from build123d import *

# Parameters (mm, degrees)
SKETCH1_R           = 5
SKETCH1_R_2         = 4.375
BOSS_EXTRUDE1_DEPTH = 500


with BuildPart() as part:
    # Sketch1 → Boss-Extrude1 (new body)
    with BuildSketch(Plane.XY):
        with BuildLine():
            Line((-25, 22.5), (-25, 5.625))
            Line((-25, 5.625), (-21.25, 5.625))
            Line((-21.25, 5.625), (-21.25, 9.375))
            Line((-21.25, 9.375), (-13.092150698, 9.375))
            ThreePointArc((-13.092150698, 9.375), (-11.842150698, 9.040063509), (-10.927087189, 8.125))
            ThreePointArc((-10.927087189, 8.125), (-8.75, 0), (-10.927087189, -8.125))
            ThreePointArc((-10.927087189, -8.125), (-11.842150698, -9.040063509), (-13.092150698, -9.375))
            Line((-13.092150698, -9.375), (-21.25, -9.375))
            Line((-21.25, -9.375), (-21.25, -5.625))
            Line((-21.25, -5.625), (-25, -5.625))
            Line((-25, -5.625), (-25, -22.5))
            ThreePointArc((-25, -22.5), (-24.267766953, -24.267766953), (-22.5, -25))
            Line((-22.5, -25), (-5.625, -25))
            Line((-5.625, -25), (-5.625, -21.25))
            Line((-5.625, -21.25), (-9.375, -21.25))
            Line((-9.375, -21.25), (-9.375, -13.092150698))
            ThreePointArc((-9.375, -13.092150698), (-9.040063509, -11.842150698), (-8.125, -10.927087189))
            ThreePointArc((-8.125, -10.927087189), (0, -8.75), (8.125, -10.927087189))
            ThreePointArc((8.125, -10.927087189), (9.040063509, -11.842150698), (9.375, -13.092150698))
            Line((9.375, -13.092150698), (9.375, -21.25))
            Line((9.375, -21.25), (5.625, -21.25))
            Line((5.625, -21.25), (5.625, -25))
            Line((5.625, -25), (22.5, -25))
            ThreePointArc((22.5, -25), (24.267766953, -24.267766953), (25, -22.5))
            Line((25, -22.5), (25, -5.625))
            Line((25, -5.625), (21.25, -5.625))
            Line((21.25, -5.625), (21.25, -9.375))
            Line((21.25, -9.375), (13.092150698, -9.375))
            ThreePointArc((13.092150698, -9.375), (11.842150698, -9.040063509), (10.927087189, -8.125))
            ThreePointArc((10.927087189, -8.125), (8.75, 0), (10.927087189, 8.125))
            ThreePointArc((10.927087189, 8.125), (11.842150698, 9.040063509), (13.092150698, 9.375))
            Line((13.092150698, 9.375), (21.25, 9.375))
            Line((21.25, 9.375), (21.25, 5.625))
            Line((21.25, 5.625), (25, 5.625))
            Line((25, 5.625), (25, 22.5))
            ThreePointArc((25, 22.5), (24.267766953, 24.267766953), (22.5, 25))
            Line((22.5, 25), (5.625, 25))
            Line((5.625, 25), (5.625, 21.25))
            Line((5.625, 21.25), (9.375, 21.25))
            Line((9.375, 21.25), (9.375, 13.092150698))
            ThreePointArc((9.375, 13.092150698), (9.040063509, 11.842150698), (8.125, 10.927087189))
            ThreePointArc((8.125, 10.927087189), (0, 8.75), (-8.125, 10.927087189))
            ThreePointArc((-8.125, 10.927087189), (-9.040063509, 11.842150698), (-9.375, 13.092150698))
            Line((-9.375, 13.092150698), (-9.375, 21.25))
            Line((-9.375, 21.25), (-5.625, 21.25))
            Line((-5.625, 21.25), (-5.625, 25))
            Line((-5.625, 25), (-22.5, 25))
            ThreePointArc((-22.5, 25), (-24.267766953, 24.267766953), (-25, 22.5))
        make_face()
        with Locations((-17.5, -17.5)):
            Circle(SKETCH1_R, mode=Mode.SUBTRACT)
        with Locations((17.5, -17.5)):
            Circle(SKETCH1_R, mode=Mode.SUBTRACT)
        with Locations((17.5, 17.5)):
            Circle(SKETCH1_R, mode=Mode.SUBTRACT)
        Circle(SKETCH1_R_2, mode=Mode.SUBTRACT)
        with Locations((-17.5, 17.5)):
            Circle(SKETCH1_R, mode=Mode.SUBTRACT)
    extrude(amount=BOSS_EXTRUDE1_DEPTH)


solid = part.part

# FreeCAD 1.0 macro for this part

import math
import FreeCAD as App
import Part
import Sketcher

V = App.Vector

doc = App.newDocument("Part")
body = doc.addObject("PartDesign::Body", "Body")

# Sketch on XY plane
sketch1 = doc.addObject("Sketcher::SketchObject", "Sketch")
body.addObject(sketch1)
sketch1.AttachmentSupport = (doc.XY_Plane, [""])
sketch1.MapMode = "FlatFace"
sketch1.addGeometry([
    Part.LineSegment(V(-25, 22.5, 0), V(-25, 5.6, 0)),  # 0
    Part.LineSegment(V(-25, 5.6, 0), V(-21.2, 5.6, 0)),  # 1
    Part.LineSegment(V(-21.2, 5.6, 0), V(-21.2, 9.4, 0)),  # 2
    Part.LineSegment(V(-21.2, 9.4, 0), V(-13.1, 9.4, 0)),  # 3
    Part.ArcOfCircle(Part.Circle(V(-13.1, 6.9, 0), V(0, 0, 1), 2.5), math.radians(30), math.radians(90)),  # 4
    Part.ArcOfCircle(Part.Circle(V(-25, 0, 0), V(0, 0, 1), 16.2), math.radians(-30), math.radians(30)),  # 5
    Part.ArcOfCircle(Part.Circle(V(-13.1, -6.9, 0), V(0, 0, 1), 2.5), math.radians(-90), math.radians(-30)),  # 6
    Part.LineSegment(V(-13.1, -9.4, 0), V(-21.2, -9.4, 0)),  # 7
    Part.LineSegment(V(-21.2, -9.4, 0), V(-21.2, -5.6, 0)),  # 8
    Part.LineSegment(V(-21.2, -5.6, 0), V(-25, -5.6, 0)),  # 9
    Part.LineSegment(V(-25, -5.6, 0), V(-25, -22.5, 0)),  # 10
    Part.ArcOfCircle(Part.Circle(V(-22.5, -22.5, 0), V(0, 0, 1), 2.5), math.radians(180), math.radians(270)),  # 11
    Part.LineSegment(V(-22.5, -25, 0), V(-5.6, -25, 0)),  # 12
    Part.LineSegment(V(-5.6, -25, 0), V(-5.6, -21.2, 0)),  # 13
    Part.LineSegment(V(-5.6, -21.2, 0), V(-9.4, -21.2, 0)),  # 14
    Part.LineSegment(V(-9.4, -21.2, 0), V(-9.4, -13.1, 0)),  # 15
    Part.ArcOfCircle(Part.Circle(V(-6.9, -13.1, 0), V(0, 0, 1), 2.5), math.radians(120), math.radians(180)),  # 16
    Part.ArcOfCircle(Part.Circle(V(0, -25, 0), V(0, 0, 1), 16.2), math.radians(60), math.radians(120)),  # 17
    Part.ArcOfCircle(Part.Circle(V(6.9, -13.1, 0), V(0, 0, 1), 2.5), math.radians(0), math.radians(60)),  # 18
    Part.LineSegment(V(9.4, -13.1, 0), V(9.4, -21.2, 0)),  # 19
    Part.LineSegment(V(9.4, -21.2, 0), V(5.6, -21.2, 0)),  # 20
    Part.LineSegment(V(5.6, -21.2, 0), V(5.6, -25, 0)),  # 21
    Part.LineSegment(V(5.6, -25, 0), V(22.5, -25, 0)),  # 22
    Part.ArcOfCircle(Part.Circle(V(22.5, -22.5, 0), V(0, 0, 1), 2.5), math.radians(-90), math.radians(0)),  # 23
    Part.LineSegment(V(25, -22.5, 0), V(25, -5.6, 0)),  # 24
    Part.LineSegment(V(25, -5.6, 0), V(21.2, -5.6, 0)),  # 25
    Part.LineSegment(V(21.2, -5.6, 0), V(21.2, -9.4, 0)),  # 26
    Part.LineSegment(V(21.2, -9.4, 0), V(13.1, -9.4, 0)),  # 27
    Part.ArcOfCircle(Part.Circle(V(13.1, -6.9, 0), V(0, 0, 1), 2.5), math.radians(-150), math.radians(-90)),  # 28
    Part.ArcOfCircle(Part.Circle(V(25, 0, 0), V(0, 0, 1), 16.2), math.radians(150), math.radians(210)),  # 29
    Part.ArcOfCircle(Part.Circle(V(13.1, 6.9, 0), V(0, 0, 1), 2.5), math.radians(90), math.radians(150)),  # 30
    Part.LineSegment(V(13.1, 9.4, 0), V(21.2, 9.4, 0)),  # 31
    Part.LineSegment(V(21.2, 9.4, 0), V(21.2, 5.6, 0)),  # 32
    Part.LineSegment(V(21.2, 5.6, 0), V(25, 5.6, 0)),  # 33
    Part.LineSegment(V(25, 5.6, 0), V(25, 22.5, 0)),  # 34
    Part.ArcOfCircle(Part.Circle(V(22.5, 22.5, 0), V(0, 0, 1), 2.5), math.radians(0), math.radians(90)),  # 35
    Part.LineSegment(V(22.5, 25, 0), V(5.6, 25, 0)),  # 36
    Part.LineSegment(V(5.6, 25, 0), V(5.6, 21.2, 0)),  # 37
    Part.LineSegment(V(5.6, 21.2, 0), V(9.4, 21.2, 0)),  # 38
    Part.LineSegment(V(9.4, 21.2, 0), V(9.4, 13.1, 0)),  # 39
    Part.ArcOfCircle(Part.Circle(V(6.9, 13.1, 0), V(0, 0, 1), 2.5), math.radians(-60), math.radians(0)),  # 40
    Part.ArcOfCircle(Part.Circle(V(0, 25, 0), V(0, 0, 1), 16.2), math.radians(-120), math.radians(-60)),  # 41
    Part.ArcOfCircle(Part.Circle(V(-6.9, 13.1, 0), V(0, 0, 1), 2.5), math.radians(-180), math.radians(-120)),  # 42
    Part.LineSegment(V(-9.4, 13.1, 0), V(-9.4, 21.2, 0)),  # 43
    Part.LineSegment(V(-9.4, 21.2, 0), V(-5.6, 21.2, 0)),  # 44
    Part.LineSegment(V(-5.6, 21.2, 0), V(-5.6, 25, 0)),  # 45
    Part.LineSegment(V(-5.6, 25, 0), V(-22.5, 25, 0)),  # 46
    Part.ArcOfCircle(Part.Circle(V(-22.5, 22.5, 0), V(0, 0, 1), 2.5), math.radians(90), math.radians(180)),  # 47
    Part.Circle(V(-17.5, -17.5, 0), V(0, 0, 1), 5),  # 48
    Part.Circle(V(17.5, -17.5, 0), V(0, 0, 1), 5),  # 49
    Part.Circle(V(-17.5, 17.5, 0), V(0, 0, 1), 5),  # 50
    Part.Circle(V(0, 0, 0), V(0, 0, 1), 4.4),  # 51
    Part.Circle(V(17.5, 17.5, 0), V(0, 0, 1), 5),  # 52
], False)
sketch1.addConstraint([
    Sketcher.Constraint("Coincident", 0, 2, 1, 1),
    Sketcher.Constraint("Coincident", 1, 2, 2, 1),
    Sketcher.Constraint("Coincident", 2, 2, 3, 1),
    Sketcher.Constraint("Tangent", 3, 2, 4, 2),
    Sketcher.Constraint("Tangent", 4, 1, 5, 2),
    Sketcher.Constraint("Tangent", 5, 1, 6, 2),
    Sketcher.Constraint("Tangent", 6, 1, 7, 1),
    Sketcher.Constraint("Coincident", 7, 2, 8, 1),
    Sketcher.Constraint("Coincident", 8, 2, 9, 1),
    Sketcher.Constraint("Coincident", 9, 2, 10, 1),
    Sketcher.Constraint("Tangent", 10, 2, 11, 1),
    Sketcher.Constraint("Tangent", 11, 2, 12, 1),
    Sketcher.Constraint("Coincident", 12, 2, 13, 1),
    Sketcher.Constraint("Coincident", 13, 2, 14, 1),
    Sketcher.Constraint("Coincident", 14, 2, 15, 1),
    Sketcher.Constraint("Tangent", 15, 2, 16, 2),
    Sketcher.Constraint("Tangent", 16, 1, 17, 2),
    Sketcher.Constraint("Tangent", 17, 1, 18, 2),
    Sketcher.Constraint("Tangent", 18, 1, 19, 1),
    Sketcher.Constraint("Coincident", 19, 2, 20, 1),
    Sketcher.Constraint("Coincident", 20, 2, 21, 1),
    Sketcher.Constraint("Coincident", 21, 2, 22, 1),
    Sketcher.Constraint("Tangent", 22, 2, 23, 1),
    Sketcher.Constraint("Tangent", 23, 2, 24, 1),
    Sketcher.Constraint("Coincident", 24, 2, 25, 1),
    Sketcher.Constraint("Coincident", 25, 2, 26, 1),
    Sketcher.Constraint("Coincident", 26, 2, 27, 1),
    Sketcher.Constraint("Tangent", 27, 2, 28, 2),
    Sketcher.Constraint("Tangent", 28, 1, 29, 2),
    Sketcher.Constraint("Tangent", 29, 1, 30, 2),
    Sketcher.Constraint("Tangent", 30, 1, 31, 1),
    Sketcher.Constraint("Coincident", 31, 2, 32, 1),
    Sketcher.Constraint("Coincident", 32, 2, 33, 1),
    Sketcher.Constraint("Coincident", 33, 2, 34, 1),
    Sketcher.Constraint("Tangent", 34, 2, 35, 1),
    Sketcher.Constraint("Tangent", 35, 2, 36, 1),
    Sketcher.Constraint("Coincident", 36, 2, 37, 1),
    Sketcher.Constraint("Coincident", 37, 2, 38, 1),
    Sketcher.Constraint("Coincident", 38, 2, 39, 1),
    Sketcher.Constraint("Tangent", 39, 2, 40, 2),
    Sketcher.Constraint("Tangent", 40, 1, 41, 2),
    Sketcher.Constraint("Tangent", 41, 1, 42, 2),
    Sketcher.Constraint("Tangent", 42, 1, 43, 1),
    Sketcher.Constraint("Coincident", 43, 2, 44, 1),
    Sketcher.Constraint("Coincident", 44, 2, 45, 1),
    Sketcher.Constraint("Coincident", 45, 2, 46, 1),
    Sketcher.Constraint("Tangent", 46, 2, 47, 1),
    Sketcher.Constraint("Tangent", 47, 2, 0, 1),
    Sketcher.Constraint("Vertical", 0),
    Sketcher.Constraint("Horizontal", 1),
    Sketcher.Constraint("Vertical", 2),
    Sketcher.Constraint("Horizontal", 3),
    Sketcher.Constraint("Horizontal", 7),
    Sketcher.Constraint("Vertical", 8),
    Sketcher.Constraint("Horizontal", 9),
    Sketcher.Constraint("Vertical", 10),
    Sketcher.Constraint("Horizontal", 12),
    Sketcher.Constraint("Vertical", 13),
    Sketcher.Constraint("Horizontal", 14),
    Sketcher.Constraint("Vertical", 15),
    Sketcher.Constraint("Vertical", 19),
    Sketcher.Constraint("Horizontal", 20),
    Sketcher.Constraint("Vertical", 21),
    Sketcher.Constraint("Horizontal", 22),
    Sketcher.Constraint("Vertical", 24),
    Sketcher.Constraint("Horizontal", 25),
    Sketcher.Constraint("Vertical", 26),
    Sketcher.Constraint("Horizontal", 27),
    Sketcher.Constraint("Horizontal", 31),
    Sketcher.Constraint("Vertical", 32),
    Sketcher.Constraint("Horizontal", 33),
    Sketcher.Constraint("Vertical", 34),
    Sketcher.Constraint("Horizontal", 36),
    Sketcher.Constraint("Vertical", 37),
    Sketcher.Constraint("Horizontal", 38),
    Sketcher.Constraint("Vertical", 39),
    Sketcher.Constraint("Vertical", 43),
    Sketcher.Constraint("Horizontal", 44),
    Sketcher.Constraint("Vertical", 45),
    Sketcher.Constraint("Horizontal", 46),
    Sketcher.Constraint("Coincident", 51, 3, -1, 1),
    Sketcher.Constraint("Equal", 4, 6),
    Sketcher.Constraint("Equal", 6, 11),
    Sketcher.Constraint("Equal", 11, 16),
    Sketcher.Constraint("Equal", 5, 17),
    Sketcher.Constraint("Equal", 16, 18),
    Sketcher.Constraint("Equal", 18, 23),
    Sketcher.Constraint("Equal", 23, 28),
    Sketcher.Constraint("Equal", 17, 29),
    Sketcher.Constraint("Equal", 28, 30),
    Sketcher.Constraint("Equal", 30, 35),
    Sketcher.Constraint("Equal", 35, 40),
    Sketcher.Constraint("Equal", 29, 41),
    Sketcher.Constraint("Equal", 40, 42),
    Sketcher.Constraint("Equal", 42, 47),
    Sketcher.Constraint("Equal", 48, 49),
    Sketcher.Constraint("Equal", 49, 50),
    Sketcher.Constraint("Equal", 50, 52),
    Sketcher.Constraint("Symmetric", 4, 3, 28, 3, -1, 1),
    Sketcher.Constraint("Symmetric", 6, 3, 30, 3, -1, 1),
    Sketcher.Constraint("Symmetric", 11, 3, 35, 3, -1, 1),
    Sketcher.Constraint("Symmetric", 16, 3, 40, 3, -1, 1),
    Sketcher.Constraint("Symmetric", 18, 3, 42, 3, -1, 1),
    Sketcher.Constraint("Symmetric", 23, 3, 47, 3, -1, 1),
    Sketcher.Constraint("Symmetric", 49, 3, 50, 3, -1, 1),
    Sketcher.Constraint("Symmetric", 48, 3, 52, 3, -1, 1),
    Sketcher.Constraint("Symmetric", 1, 2, 25, 2, -1, 1),
    Sketcher.Constraint("Symmetric", 8, 2, 32, 2, -1, 1),
    Sketcher.Constraint("Symmetric", 13, 2, 37, 2, -1, 1),
    Sketcher.Constraint("Symmetric", 20, 2, 44, 2, -1, 1),
    Sketcher.Constraint("Symmetric", 16, 3, 18, 3, -2),
    Sketcher.Constraint("Symmetric", 11, 3, 23, 3, -2),
    Sketcher.Constraint("Symmetric", 6, 3, 28, 3, -2),
    Sketcher.Constraint("Symmetric", 48, 3, 49, 3, -2),
    Sketcher.Constraint("Symmetric", 13, 2, 20, 2, -2),
    Sketcher.Constraint("Symmetric", 8, 2, 25, 2, -2),
    Sketcher.Constraint("Horizontal", 17, 3, 11, 2),
    Sketcher.Constraint("Vertical", 5, 3, 0, 2),
    Sketcher.Constraint("Equal", 9, 14),
    Sketcher.Constraint("Equal", 46, 0),
    Sketcher.Constraint("Equal", 44, 2),
    Sketcher.Constraint("Equal", 8, 13),
    Sketcher.Constraint("Equal", 31, 15),
    Sketcher.Constraint("Diameter", 48, 10.0),
    Sketcher.Constraint("Radius", 4, 2.5),
    Sketcher.Constraint("Diameter", 51, 8.75),
    Sketcher.Constraint("Radius", 5, 16.25),
    Sketcher.Constraint("DistanceX", 5, 3, -1, 1, 25.0),
    Sketcher.Constraint("DistanceX", 1, 1, 1, 2, 3.75),
    Sketcher.Constraint("DistanceX", 48, 3, -1, 1, 17.5),
    Sketcher.Constraint("DistanceY", 48, 3, -1, 1, 17.5),
    Sketcher.Constraint("DistanceX", 12, 1, 12, 2, 16.875),
])
pad1 = doc.addObject("PartDesign::Pad", "Pad")
body.addObject(pad1)
pad1.Profile = sketch1
pad1.Length = 500

doc.recompute()
